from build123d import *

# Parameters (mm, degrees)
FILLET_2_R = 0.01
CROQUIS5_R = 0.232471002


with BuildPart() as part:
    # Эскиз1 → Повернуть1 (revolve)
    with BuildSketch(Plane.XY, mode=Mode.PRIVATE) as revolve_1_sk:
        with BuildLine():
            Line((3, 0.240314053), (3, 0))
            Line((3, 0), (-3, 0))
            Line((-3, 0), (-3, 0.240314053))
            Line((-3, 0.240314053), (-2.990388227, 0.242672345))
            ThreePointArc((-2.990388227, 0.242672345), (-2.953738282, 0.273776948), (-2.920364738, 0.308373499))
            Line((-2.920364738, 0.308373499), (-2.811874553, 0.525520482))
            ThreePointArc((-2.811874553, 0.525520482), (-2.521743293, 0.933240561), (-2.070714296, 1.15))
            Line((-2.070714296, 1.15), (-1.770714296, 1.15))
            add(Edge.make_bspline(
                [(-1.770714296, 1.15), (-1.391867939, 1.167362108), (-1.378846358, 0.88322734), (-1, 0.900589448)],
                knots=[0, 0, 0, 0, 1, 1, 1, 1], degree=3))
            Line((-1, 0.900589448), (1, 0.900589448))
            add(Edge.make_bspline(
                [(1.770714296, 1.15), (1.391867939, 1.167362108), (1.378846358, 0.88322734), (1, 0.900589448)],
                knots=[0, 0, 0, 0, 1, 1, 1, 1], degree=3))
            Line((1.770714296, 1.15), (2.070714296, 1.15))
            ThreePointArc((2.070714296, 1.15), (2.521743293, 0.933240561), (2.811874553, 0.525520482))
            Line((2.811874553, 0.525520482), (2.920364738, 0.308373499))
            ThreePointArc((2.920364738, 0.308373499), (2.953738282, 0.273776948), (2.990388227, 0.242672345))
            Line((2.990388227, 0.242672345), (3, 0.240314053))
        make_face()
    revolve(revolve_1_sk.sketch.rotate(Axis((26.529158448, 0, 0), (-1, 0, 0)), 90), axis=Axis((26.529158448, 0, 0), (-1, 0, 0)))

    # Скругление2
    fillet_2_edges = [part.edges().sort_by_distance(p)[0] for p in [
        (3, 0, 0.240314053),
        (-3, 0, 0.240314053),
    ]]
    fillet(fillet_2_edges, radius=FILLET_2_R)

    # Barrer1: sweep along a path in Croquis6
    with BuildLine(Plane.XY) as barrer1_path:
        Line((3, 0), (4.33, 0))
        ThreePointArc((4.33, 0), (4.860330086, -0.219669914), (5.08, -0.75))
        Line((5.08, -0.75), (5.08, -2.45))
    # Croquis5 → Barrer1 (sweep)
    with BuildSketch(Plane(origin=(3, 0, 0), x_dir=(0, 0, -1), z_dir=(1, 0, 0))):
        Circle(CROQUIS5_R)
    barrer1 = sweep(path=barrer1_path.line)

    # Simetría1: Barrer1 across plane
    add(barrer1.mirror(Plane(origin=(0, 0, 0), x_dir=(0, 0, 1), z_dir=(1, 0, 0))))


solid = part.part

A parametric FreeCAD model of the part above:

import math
import FreeCAD as App
import Part
import Sketcher

V = App.Vector
Q = App.Units.Quantity


def edges_at(feature, points):
    """Names of the edges that pass closest to the given points."""
    edges = feature.Shape.Edges
    near = lambda p: min(range(len(edges)), key=lambda i: edges[i].distToShape(Part.Vertex(*p))[0])
    return sorted({f"Edge{near(p) + 1}" for p in points})

doc = App.newDocument("Part")
body = doc.addObject("PartDesign::Body", "Body")

# Sketch on XY plane
sketch1 = body.newObject("Sketcher::SketchObject", "Sketch")
sketch1.AttachmentSupport = (doc.getObject("XY_Plane"), [""])
sketch1.MapMode = "FlatFace"
sketch1.addGeometry(Part.LineSegment(V(3, 0, 0), V(3, 0.240314, 0)), False)
sketch1.addGeometry(Part.LineSegment(V(3, 0.240314, 0), V(2.990388, 0.242672, 0)), False)
sketch1.addGeometry(Part.ArcOfCircle(Part.Circle(V(3.283931, 0.625692, 0), V(0, 0, 1), 0.482568), math.radians(-138.885704), math.radians(-127.466205)), False)
sketch1.addGeometry(Part.LineSegment(V(2.920365, 0.308373, 0), V(2.811875, 0.52552, 0)), False)
sketch1.addGeometry(Part.ArcOfCircle(Part.Circle(V(1.875583, 0.166349, 0), V(0, 0, 1), 1.002819), math.radians(20.98736), math.radians(78.779662)), False)
sketch1.addGeometry(Part.LineSegment(V(2.070714, 1.15, 0), V(1.770714, 1.15, 0)), False)
sketch1.addGeometry(Part.BSplineCurve([V(1.770714, 1.15, 0), V(1.391868, 1.167362, 0), V(1.378846, 0.883227, 0), V(1, 0.900589, 0)], [4, 4], [0, 1], False, 3, [1, 1, 1, 1], False), False)
sketch1.addGeometry(Part.LineSegment(V(1, 0.900589, 0), V(-1, 0.900589, 0)), False)
sketch1.addGeometry(Part.BSplineCurve([V(-1.770714, 1.15, 0), V(-1.391868, 1.167362, 0), V(-1.378846, 0.883227, 0), V(-1, 0.900589, 0)], [4, 4], [0, 1], False, 3, [1, 1, 1, 1], False), False)
sketch1.addGeometry(Part.LineSegment(V(-1.770714, 1.15, 0), V(-2.070714, 1.15, 0)), False)
sketch1.addGeometry(Part.ArcOfCircle(Part.Circle(V(-1.875583, 0.166349, 0), V(0, 0, 1), 1.002819), math.radians(101.220338), math.radians(159.01264)), False)
sketch1.addGeometry(Part.LineSegment(V(-2.811875, 0.52552, 0), V(-2.920365, 0.308373, 0)), False)
sketch1.addGeometry(Part.ArcOfCircle(Part.Circle(V(-3.283931, 0.625692, 0), V(0, 0, 1), 0.482568), math.radians(-52.533795), math.radians(-41.114296)), False)
sketch1.addGeometry(Part.LineSegment(V(-2.990388, 0.242672, 0), V(-3, 0.240314, 0)), False)
sketch1.addGeometry(Part.LineSegment(V(-3, 0.240314, 0), V(-3, 0, 0)), False)
sketch1.addGeometry(Part.LineSegment(V(-3, 0, 0), V(3, 0, 0)), False)
sketch1.addConstraint(Sketcher.Constraint("Block", 6))
sketch1.addConstraint(Sketcher.Constraint("Block", 8))
sketch1.addConstraint(Sketcher.Constraint("Coincident", 0, 2, 1, 1))
sketch1.addConstraint(Sketcher.Constraint("Coincident", 1, 2, 2, 2))
sketch1.addConstraint(Sketcher.Constraint("Coincident", 2, 1, 3, 1))
sketch1.addConstraint(Sketcher.Constraint("Coincident", 3, 2, 4, 1))
sketch1.addConstraint(Sketcher.Constraint("Coincident", 4, 2, 5, 1))
sketch1.addConstraint(Sketcher.Constraint("Coincident", 5, 2, 6, 1))
sketch1.addConstraint(Sketcher.Constraint("Coincident", 6, 2, 7, 1))
sketch1.addConstraint(Sketcher.Constraint("Coincident", 7, 2, 8, 2))
sketch1.addConstraint(Sketcher.Constraint("Coincident", 8, 1, 9, 1))
sketch1.addConstraint(Sketcher.Constraint("Coincident", 9, 2, 10, 1))
sketch1.addConstraint(Sketcher.Constraint("Coincident", 10, 2, 11, 1))
sketch1.addConstraint(Sketcher.Constraint("Coincident", 11, 2, 12, 2))
sketch1.addConstraint(Sketcher.Constraint("Coincident", 12, 1, 13, 1))
sketch1.addConstraint(Sketcher.Constraint("Coincident", 13, 2, 14, 1))
sketch1.addConstraint(Sketcher.Constraint("Coincident", 14, 2, 15, 1))
sketch1.addConstraint(Sketcher.Constraint("Coincident", 15, 2, 0, 1))
sketch1.addConstraint(Sketcher.Constraint("Vertical", 0))
sketch1.addConstraint(Sketcher.Constraint("Horizontal", 5))
sketch1.addConstraint(Sketcher.Constraint("Horizontal", 9))
sketch1.addConstraint(Sketcher.Constraint("Vertical", 14))
sketch1.addConstraint(Sketcher.Constraint("Horizontal", 15))
sketch1.addConstraint(Sketcher.Constraint("Equal", 4, 10))
sketch1.addConstraint(Sketcher.Constraint("Equal", 2, 12))
sketch1.addConstraint(Sketcher.Constraint("Symmetric", 14, 2, 15, 2, -1, 1))
sketch1.addConstraint(Sketcher.Constraint("Symmetric", 4, 3, 10, 3, -2))
sketch1.addConstraint(Sketcher.Constraint("Symmetric", 2, 3, 12, 3, -2))
sketch1.addConstraint(Sketcher.Constraint("Horizontal", 3, 2, 10, 2))
sketch1.addConstraint(Sketcher.Constraint("Horizontal", 2, 1, 11, 2))
sketch1.addConstraint(Sketcher.Constraint("Horizontal", 1, 2, 12, 1))
sketch1.addConstraint(Sketcher.Constraint("Horizontal", 0, 2, 13, 2))
sketch1.addConstraint(Sketcher.Constraint("DistanceX", 15, 1, 15, 2, Q("6 mm")))
sketch1.addConstraint(Sketcher.Constraint("DistanceX", 5, 2, 5, 1, Q("0.3 mm")))
sketch1.addConstraint(Sketcher.Constraint("Radius", 4, Q("1.002819 mm")))
sketch1.addConstraint(Sketcher.Constraint("Radius", 2, Q("0.482568 mm")))
sketch1.addConstraint(Sketcher.Constraint("DistanceY", 1, 2, 2, 1, Q("0.065701 mm")))
sketch1.addConstraint(Sketcher.Constraint("Distance", 3, Q("0.24274 mm")))
sketch1.addConstraint(Sketcher.Constraint("DistanceY", 0, 1, 0, 2, Q("0.240314 mm")))
sketch1.addConstraint(Sketcher.Constraint("DistanceX", -1, 1, 2, 3, Q("3.283931 mm")))
sketch1.addConstraint(Sketcher.Constraint("DistanceY", -1, 1, 4, 3, Q("0.166349 mm")))
sketch1.addConstraint(Sketcher.Constraint("DistanceX", -1, 1, 1, 2, Q("2.990388 mm")))
sketch1.addConstraint(Sketcher.Constraint("DistanceY", -1, 1, 3, 2, Q("0.52552 mm")))
revolution = body.newObject("PartDesign::Revolution", "Revolution")
revolution.Profile = sketch1
revolution.ReferenceAxis = (sketch1, ["H_Axis"])
revolution.Angle = 360
doc.recompute()

fillet = body.newObject("PartDesign::Fillet", "Fillet")
fillet.Base = (revolution, edges_at(revolution, [(3, 0, 0.24), (-3, 0, 0.24)]))
fillet.Radius = 0.01

# Sketch on YZ plane
sketch2 = body.newObject("Sketcher::SketchObject", "Sketch001")
sketch2.AttachmentSupport = (doc.getObject("YZ_Plane"), [""])
sketch2.MapMode = "FlatFace"
sketch2.AttachmentOffset = App.Placement(V(0, 0, 3), App.Rotation())
sketch2.addGeometry(Part.Circle(V(0, 0, 0), V(0, 0, 1), 0.23), False)
sketch2.addConstraint(Sketcher.Constraint("Coincident", 0, 3, -1, 1))
sketch2.addConstraint(Sketcher.Constraint("Diameter", 0, Q("0.464942 mm")))

# Sketch on XY plane
sketch3 = body.newObject("Sketcher::SketchObject", "Sketch002")
sketch3.AttachmentSupport = (doc.getObject("XY_Plane"), [""])
sketch3.MapMode = "FlatFace"
sketch3.addGeometry(Part.LineSegment(V(3, 0, 0), V(4.3, 0, 0)), False)
sketch3.addGeometry(Part.ArcOfCircle(Part.Circle(V(4.3, -0.8, 0), V(0, 0, 1), 0.8), math.radians(0), math.radians(90)), False)
sketch3.addGeometry(Part.LineSegment(V(5.1, -0.8, 0), V(5.1, -2.5, 0)), False)
sketch3.addConstraint(Sketcher.Constraint("Tangent", 0, 2, 1, 2))
sketch3.addConstraint(Sketcher.Constraint("Tangent", 1, 1, 2, 1))
sketch3.addConstraint(Sketcher.Constraint("Horizontal", 0))
sketch3.addConstraint(Sketcher.Constraint("Vertical", 2))
sketch3.addConstraint(Sketcher.Constraint("PointOnObject", 0, 1, -1))
sketch3.addConstraint(Sketcher.Constraint("Radius", 1, Q("0.75 mm")))
sketch3.addConstraint(Sketcher.Constraint("DistanceY", 2, 2, 2, 1, Q("1.7 mm")))
sketch3.addConstraint(Sketcher.Constraint("DistanceX", -1, 1, 0, 1, Q("3 mm")))
sketch3.addConstraint(Sketcher.Constraint("DistanceX", 0, 1, 0, 2, Q("1.33 mm")))
doc.recompute()

additivepipe = body.newObject("PartDesign::AdditivePipe", "AdditivePipe")
additivepipe.Profile = sketch2
additivepipe.Spine = (sketch3, ["Edge1", "Edge2", "Edge3"])
doc.recompute()

mirrored = body.newObject("PartDesign::Mirrored", "Mirrored")
mirrored.Originals = [additivepipe]
mirrored.MirrorPlane = (doc.getObject("YZ_Plane"), [""])
body.Tip = mirrored

doc.recompute()
